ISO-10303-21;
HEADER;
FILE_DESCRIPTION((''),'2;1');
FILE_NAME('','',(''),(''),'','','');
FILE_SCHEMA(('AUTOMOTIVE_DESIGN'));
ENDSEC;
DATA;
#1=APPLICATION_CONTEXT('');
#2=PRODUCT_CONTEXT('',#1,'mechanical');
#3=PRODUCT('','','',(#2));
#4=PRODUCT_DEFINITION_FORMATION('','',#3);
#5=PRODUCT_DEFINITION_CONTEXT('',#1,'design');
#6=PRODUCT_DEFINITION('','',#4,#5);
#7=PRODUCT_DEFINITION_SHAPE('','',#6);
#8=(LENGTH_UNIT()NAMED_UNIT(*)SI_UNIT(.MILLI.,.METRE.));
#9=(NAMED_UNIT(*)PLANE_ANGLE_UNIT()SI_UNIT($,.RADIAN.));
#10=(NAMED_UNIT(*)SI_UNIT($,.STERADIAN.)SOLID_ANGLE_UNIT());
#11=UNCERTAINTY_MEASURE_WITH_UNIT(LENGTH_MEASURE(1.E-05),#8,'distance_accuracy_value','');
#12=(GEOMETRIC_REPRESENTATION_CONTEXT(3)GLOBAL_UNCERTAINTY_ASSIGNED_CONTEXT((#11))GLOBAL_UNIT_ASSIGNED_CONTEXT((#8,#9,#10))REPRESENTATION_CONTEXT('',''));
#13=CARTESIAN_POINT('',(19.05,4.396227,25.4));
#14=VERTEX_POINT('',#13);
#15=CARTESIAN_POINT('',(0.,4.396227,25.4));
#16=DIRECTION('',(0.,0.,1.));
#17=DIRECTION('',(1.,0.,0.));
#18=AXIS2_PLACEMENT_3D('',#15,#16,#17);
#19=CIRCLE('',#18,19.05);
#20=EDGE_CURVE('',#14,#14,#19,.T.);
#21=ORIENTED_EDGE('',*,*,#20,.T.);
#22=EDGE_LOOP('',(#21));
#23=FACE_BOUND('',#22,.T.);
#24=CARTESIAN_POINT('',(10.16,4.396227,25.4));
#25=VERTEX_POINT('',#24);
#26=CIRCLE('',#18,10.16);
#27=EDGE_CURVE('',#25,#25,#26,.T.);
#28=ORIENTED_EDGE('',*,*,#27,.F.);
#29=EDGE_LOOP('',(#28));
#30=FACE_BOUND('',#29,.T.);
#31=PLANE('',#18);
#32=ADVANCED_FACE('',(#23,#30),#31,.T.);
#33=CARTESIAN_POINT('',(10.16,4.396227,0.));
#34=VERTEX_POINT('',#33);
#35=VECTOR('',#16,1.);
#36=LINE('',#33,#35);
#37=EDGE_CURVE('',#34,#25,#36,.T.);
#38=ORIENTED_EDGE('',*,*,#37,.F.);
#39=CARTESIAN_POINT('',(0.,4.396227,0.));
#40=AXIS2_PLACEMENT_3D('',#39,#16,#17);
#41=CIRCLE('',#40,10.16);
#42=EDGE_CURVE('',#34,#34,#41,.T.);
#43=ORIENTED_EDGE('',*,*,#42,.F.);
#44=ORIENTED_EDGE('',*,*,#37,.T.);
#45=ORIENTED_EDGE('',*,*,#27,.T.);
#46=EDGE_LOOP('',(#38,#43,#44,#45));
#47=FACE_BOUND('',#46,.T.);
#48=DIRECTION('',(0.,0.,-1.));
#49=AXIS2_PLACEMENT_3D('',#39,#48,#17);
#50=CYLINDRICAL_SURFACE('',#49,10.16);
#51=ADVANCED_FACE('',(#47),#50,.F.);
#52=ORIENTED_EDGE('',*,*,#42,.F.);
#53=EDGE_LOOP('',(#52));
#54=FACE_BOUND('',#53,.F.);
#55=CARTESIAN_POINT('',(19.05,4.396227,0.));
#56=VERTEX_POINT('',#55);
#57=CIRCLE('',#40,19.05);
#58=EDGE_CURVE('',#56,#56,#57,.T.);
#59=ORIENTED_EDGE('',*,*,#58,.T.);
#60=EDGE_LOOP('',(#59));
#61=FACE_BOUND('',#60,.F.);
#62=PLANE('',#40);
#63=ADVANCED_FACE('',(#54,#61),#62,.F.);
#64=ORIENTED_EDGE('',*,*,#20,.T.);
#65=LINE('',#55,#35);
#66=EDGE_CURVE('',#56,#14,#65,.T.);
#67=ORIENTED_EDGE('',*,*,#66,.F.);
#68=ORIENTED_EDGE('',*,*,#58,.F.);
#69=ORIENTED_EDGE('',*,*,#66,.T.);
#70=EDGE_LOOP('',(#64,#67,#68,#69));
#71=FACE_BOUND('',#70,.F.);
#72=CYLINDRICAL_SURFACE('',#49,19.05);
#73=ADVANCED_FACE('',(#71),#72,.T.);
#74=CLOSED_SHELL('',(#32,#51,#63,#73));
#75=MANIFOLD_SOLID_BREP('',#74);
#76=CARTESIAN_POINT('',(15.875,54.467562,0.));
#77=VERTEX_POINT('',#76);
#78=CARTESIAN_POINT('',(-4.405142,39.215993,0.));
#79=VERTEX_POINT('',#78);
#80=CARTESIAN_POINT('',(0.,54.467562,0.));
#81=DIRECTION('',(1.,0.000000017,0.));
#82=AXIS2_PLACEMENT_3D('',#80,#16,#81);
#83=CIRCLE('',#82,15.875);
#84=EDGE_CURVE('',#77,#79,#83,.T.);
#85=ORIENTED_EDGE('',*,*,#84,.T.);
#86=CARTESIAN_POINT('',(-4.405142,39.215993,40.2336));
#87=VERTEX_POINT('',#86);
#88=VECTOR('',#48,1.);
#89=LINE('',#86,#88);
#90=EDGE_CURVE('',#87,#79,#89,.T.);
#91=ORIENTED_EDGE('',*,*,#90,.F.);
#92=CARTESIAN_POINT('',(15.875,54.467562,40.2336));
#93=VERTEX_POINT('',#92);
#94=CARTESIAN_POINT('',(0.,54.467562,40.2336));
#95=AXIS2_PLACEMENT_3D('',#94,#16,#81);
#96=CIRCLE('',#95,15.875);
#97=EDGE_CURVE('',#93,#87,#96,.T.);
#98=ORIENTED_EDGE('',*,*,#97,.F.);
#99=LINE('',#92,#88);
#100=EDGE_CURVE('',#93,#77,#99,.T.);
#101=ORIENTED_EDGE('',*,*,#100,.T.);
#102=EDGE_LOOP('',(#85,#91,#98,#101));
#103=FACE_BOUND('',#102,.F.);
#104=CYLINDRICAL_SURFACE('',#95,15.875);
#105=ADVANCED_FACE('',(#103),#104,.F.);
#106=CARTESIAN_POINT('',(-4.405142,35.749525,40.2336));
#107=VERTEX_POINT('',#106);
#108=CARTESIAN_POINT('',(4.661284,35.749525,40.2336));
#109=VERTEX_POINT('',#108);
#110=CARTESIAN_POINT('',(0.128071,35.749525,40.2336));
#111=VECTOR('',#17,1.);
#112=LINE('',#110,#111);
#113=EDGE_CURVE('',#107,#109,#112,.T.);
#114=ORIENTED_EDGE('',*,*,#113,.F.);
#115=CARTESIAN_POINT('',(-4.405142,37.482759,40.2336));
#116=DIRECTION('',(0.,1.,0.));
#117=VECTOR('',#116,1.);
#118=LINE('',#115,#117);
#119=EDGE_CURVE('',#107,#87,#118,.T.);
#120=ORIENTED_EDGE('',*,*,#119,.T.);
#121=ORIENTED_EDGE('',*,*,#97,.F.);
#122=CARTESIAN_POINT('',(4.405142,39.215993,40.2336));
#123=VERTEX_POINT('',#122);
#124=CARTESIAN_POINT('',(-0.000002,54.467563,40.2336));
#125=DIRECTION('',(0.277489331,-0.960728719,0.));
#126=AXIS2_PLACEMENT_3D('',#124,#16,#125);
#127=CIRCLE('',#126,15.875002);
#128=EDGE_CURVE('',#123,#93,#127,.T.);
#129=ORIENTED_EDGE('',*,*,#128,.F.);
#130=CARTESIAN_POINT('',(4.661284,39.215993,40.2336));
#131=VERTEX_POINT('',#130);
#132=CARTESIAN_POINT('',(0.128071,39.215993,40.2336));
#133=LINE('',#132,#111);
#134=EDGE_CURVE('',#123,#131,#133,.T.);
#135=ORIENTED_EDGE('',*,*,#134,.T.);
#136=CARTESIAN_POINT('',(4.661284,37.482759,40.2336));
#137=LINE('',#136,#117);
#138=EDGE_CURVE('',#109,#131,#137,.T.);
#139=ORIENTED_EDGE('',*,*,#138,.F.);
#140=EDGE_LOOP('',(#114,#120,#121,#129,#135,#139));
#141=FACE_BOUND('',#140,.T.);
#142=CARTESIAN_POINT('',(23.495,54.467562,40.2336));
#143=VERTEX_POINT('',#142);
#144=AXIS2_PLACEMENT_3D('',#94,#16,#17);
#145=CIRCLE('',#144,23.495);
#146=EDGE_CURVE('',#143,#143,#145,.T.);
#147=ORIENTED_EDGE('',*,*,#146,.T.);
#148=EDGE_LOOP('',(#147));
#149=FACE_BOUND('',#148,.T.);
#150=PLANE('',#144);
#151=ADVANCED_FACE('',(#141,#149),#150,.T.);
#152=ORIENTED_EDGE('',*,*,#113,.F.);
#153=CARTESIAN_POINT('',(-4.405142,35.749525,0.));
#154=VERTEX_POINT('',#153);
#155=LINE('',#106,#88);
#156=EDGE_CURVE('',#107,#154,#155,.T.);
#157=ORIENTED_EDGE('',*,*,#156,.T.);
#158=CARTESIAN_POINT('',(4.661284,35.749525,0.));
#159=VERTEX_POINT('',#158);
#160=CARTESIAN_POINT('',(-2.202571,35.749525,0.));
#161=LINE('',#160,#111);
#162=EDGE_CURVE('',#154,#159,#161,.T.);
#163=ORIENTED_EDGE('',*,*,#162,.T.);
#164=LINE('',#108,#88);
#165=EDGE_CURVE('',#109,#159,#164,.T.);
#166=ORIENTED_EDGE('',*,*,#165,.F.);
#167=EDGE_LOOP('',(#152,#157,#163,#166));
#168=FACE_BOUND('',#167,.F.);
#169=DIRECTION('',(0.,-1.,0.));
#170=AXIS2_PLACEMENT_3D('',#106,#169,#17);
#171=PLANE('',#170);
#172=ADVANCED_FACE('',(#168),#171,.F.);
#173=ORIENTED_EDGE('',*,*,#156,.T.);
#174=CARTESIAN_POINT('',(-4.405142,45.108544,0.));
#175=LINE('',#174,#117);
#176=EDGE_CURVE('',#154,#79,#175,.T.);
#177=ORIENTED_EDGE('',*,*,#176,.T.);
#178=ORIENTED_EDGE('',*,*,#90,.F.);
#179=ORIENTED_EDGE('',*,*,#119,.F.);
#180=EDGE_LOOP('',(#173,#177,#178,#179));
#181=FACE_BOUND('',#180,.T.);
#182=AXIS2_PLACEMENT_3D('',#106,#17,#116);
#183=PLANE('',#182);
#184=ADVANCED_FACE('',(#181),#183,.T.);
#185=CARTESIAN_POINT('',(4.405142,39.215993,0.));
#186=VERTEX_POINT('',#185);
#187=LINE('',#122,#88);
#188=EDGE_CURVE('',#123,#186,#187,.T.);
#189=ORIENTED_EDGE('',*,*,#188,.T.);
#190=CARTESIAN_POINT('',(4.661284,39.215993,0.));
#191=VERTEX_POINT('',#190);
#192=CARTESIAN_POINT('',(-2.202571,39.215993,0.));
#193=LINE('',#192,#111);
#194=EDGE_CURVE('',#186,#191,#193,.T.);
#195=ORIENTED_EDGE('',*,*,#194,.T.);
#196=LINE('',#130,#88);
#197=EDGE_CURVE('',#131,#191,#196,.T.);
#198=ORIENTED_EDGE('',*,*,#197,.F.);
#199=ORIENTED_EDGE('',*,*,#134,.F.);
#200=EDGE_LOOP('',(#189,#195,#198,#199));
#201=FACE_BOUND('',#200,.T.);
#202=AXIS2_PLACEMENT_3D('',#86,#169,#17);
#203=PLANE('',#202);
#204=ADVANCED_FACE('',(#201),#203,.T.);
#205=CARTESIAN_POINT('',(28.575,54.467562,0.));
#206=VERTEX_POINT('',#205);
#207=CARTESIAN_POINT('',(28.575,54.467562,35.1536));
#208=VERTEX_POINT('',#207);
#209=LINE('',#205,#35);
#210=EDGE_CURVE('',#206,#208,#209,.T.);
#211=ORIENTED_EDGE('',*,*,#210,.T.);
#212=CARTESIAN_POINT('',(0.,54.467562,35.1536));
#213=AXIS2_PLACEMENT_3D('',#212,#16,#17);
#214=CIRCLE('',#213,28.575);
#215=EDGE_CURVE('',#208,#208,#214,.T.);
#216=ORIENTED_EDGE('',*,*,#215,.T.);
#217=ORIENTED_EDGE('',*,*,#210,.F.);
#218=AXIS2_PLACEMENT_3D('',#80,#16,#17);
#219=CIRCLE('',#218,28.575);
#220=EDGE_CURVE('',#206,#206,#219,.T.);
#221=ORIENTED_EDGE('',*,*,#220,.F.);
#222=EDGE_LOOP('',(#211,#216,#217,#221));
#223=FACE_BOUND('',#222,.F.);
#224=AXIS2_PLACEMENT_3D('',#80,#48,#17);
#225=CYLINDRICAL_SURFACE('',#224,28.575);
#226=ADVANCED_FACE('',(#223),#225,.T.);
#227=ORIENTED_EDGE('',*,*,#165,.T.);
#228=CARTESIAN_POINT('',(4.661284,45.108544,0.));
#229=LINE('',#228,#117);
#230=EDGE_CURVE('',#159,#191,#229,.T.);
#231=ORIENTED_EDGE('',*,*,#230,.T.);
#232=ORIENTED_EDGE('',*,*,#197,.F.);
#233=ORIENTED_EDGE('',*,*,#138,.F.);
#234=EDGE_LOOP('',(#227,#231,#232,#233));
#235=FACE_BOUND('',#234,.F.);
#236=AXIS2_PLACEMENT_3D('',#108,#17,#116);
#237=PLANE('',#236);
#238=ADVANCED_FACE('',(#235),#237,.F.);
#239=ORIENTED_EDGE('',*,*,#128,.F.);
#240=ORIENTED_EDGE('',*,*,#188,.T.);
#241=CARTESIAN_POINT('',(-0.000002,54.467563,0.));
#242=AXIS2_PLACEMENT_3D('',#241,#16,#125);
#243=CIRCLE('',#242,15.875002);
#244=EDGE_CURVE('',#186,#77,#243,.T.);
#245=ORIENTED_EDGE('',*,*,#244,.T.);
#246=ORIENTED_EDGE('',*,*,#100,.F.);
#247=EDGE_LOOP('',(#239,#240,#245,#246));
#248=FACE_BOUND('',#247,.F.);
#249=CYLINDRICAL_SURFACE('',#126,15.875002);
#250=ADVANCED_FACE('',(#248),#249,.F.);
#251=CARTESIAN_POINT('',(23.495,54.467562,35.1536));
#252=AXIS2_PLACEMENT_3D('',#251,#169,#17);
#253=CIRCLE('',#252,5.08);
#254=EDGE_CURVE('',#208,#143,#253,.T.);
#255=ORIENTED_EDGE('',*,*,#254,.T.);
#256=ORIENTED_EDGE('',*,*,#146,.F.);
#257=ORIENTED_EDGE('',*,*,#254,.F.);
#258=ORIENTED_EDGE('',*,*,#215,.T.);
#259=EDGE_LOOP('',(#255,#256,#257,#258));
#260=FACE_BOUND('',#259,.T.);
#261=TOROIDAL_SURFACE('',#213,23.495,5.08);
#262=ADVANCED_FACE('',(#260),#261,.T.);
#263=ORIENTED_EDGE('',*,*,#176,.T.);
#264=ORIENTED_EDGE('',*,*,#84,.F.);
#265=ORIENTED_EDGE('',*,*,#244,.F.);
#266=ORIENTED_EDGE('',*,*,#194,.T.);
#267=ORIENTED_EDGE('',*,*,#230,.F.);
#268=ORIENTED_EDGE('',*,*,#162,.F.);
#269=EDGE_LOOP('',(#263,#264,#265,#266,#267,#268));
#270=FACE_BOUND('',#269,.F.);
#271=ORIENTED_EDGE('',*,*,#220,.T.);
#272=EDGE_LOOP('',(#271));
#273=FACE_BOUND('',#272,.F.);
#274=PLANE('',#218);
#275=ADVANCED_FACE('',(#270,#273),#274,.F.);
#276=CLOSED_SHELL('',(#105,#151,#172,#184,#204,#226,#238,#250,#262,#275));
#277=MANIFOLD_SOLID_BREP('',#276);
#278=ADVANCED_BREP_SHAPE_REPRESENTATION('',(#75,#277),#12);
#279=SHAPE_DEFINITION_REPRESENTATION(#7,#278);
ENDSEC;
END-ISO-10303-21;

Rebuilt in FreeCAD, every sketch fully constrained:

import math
import FreeCAD as App
import Part
import Sketcher
Q = App.Units.Quantity


def edges_at(feature, points):
    """Names of the edges that pass closest to the given points."""
    edges = feature.Shape.Edges
    near = lambda p: min(range(len(edges)), key=lambda i: edges[i].distToShape(Part.Vertex(*p))[0])
    return sorted({f"Edge{near(p) + 1}" for p in points})

doc = App.newDocument("Part")
body = doc.addObject("PartDesign::Body", "Body")

# Sketch on XY plane
sketch1 = body.newObject("Sketcher::SketchObject", "Sketch")
sketch1.AttachmentSupport = (doc.getObject("XY_Plane"), [""])
sketch1.MapMode = "FlatFace"
sketch1.addGeometry(Part.Circle(App.Vector(0, 54, 0), App.Vector(0, 0, 1), 29), False)
sketch1.addConstraint([
    Sketcher.Constraint("PointOnObject", 0, 3, -2),
    Sketcher.Constraint("Diameter", 0, Q("2.25 in")),
    Sketcher.Constraint("DistanceY", -1, 1, 0, 3, 54.467562),
])
pad1 = body.newObject("PartDesign::Pad", "Pad")
pad1.Profile = sketch1
pad1.Length = Q("1.584 in")
doc.recompute()

fillet = body.newObject("PartDesign::Fillet", "Fillet")
fillet.Base = (pad1, edges_at(pad1, [(-28.575, 54.468, 40.234)]))
fillet.Radius = Q("0.2 in")

# Sketch on XY plane
sketch2 = body.newObject("Sketcher::SketchObject", "Sketch001")
sketch2.AttachmentSupport = (doc.getObject("XY_Plane"), [""])
sketch2.MapMode = "FlatFace"
sketch2.AttachmentOffset = App.Placement(App.Vector(0, 0, 1.584 * 25.4), App.Rotation())
sketch2.addGeometry([
    Part.ArcOfCircle(Part.Circle(App.Vector(0, 54, 0), App.Vector(0, 0, 1), 16), math.radians(-74), math.radians(0)),
    Part.ArcOfCircle(Part.Circle(App.Vector(0, 54, 0), App.Vector(0, 0, 1), 16), math.radians(0), math.radians(254)),
    Part.LineSegment(App.Vector(-4, 39, 0), App.Vector(4, 39, 0)),
], False)
sketch2.addConstraint([
    Sketcher.Constraint("Tangent", 0, 2, 1, 1),
    Sketcher.Constraint("Coincident", 1, 2, 2, 1),
    Sketcher.Constraint("Coincident", 2, 2, 0, 1),
    Sketcher.Constraint("Horizontal", 2),
    Sketcher.Constraint("Equal", 0, 1),
    Sketcher.Constraint("PointOnObject", 0, 3, -2),
    Sketcher.Constraint("Horizontal", 1, 3, 0, 2),
    Sketcher.Constraint("Radius", 0, Q("0.6250001 in")),
    Sketcher.Constraint("DistanceX", 2, 1, 2, 2, 8.810284),
    Sketcher.Constraint("DistanceY", -1, 1, 1, 3, 54.467562),
])
pocket1 = body.newObject("PartDesign::Pocket", "Pocket")
pocket1.Profile = sketch2
pocket1.Length = Q("2 in")

# Sketch on XY plane
sketch3 = body.newObject("Sketcher::SketchObject", "Sketch002")
sketch3.AttachmentSupport = (doc.getObject("XY_Plane"), [""])
sketch3.MapMode = "FlatFace"
sketch3.AttachmentOffset = App.Placement(App.Vector(0, 0, 1.584 * 25.4), App.Rotation())
sketch3.addGeometry([
    Part.LineSegment(App.Vector(-4.4, 39.2, 0), App.Vector(-4.4, 35.7, 0)),
    Part.LineSegment(App.Vector(-4.4, 35.7, 0), App.Vector(4.7, 35.7, 0)),
    Part.LineSegment(App.Vector(4.7, 35.7, 0), App.Vector(4.7, 39.2, 0)),
    Part.LineSegment(App.Vector(4.7, 39.2, 0), App.Vector(-4.4, 39.2, 0)),
], False)
sketch3.addConstraint([
    Sketcher.Constraint("Coincident", 0, 2, 1, 1),
    Sketcher.Constraint("Coincident", 1, 2, 2, 1),
    Sketcher.Constraint("Coincident", 2, 2, 3, 1),
    Sketcher.Constraint("Coincident", 3, 2, 0, 1),
    Sketcher.Constraint("Vertical", 0),
    Sketcher.Constraint("Horizontal", 1),
    Sketcher.Constraint("Vertical", 2),
    Sketcher.Constraint("Horizontal", 3),
    Sketcher.Constraint("DistanceX", 1, 1, 1, 2, 9.066426),
    Sketcher.Constraint("DistanceY", 0, 2, 0, 1, 3.466468),
    Sketcher.Constraint("DistanceX", 0, 2, -1, 1, 4.405142),
    Sketcher.Constraint("DistanceY", -1, 1, 0, 2, 35.749525),
])
pocket2 = body.newObject("PartDesign::Pocket", "Pocket001")
pocket2.Profile = sketch3
pocket2.Length = Q("2 in")
body2 = doc.addObject("PartDesign::Body", "Body001")

# Sketch on XY plane
sketch4 = body2.newObject("Sketcher::SketchObject", "Sketch003")
sketch4.AttachmentSupport = (doc.getObject("XY_Plane001"), [""])
sketch4.MapMode = "FlatFace"
sketch4.addGeometry([
    Part.Circle(App.Vector(0, 4, 0), App.Vector(0, 0, 1), 19),
    Part.Circle(App.Vector(0, 4, 0), App.Vector(0, 0, 1), 10),
], False)
sketch4.addConstraint([
    Sketcher.Constraint("Coincident", 1, 3, 0, 3),
    Sketcher.Constraint("PointOnObject", 0, 3, -2),
    Sketcher.Constraint("Diameter", 0, Q("1.5 in")),
    Sketcher.Constraint("Diameter", 1, Q("0.8 in")),
    Sketcher.Constraint("DistanceY", -1, 1, 0, 3, 4.396227),
])
pad2 = body2.newObject("PartDesign::Pad", "Pad001")
pad2.Profile = sketch4
pad2.Length = Q("1 in")

doc.recompute()
